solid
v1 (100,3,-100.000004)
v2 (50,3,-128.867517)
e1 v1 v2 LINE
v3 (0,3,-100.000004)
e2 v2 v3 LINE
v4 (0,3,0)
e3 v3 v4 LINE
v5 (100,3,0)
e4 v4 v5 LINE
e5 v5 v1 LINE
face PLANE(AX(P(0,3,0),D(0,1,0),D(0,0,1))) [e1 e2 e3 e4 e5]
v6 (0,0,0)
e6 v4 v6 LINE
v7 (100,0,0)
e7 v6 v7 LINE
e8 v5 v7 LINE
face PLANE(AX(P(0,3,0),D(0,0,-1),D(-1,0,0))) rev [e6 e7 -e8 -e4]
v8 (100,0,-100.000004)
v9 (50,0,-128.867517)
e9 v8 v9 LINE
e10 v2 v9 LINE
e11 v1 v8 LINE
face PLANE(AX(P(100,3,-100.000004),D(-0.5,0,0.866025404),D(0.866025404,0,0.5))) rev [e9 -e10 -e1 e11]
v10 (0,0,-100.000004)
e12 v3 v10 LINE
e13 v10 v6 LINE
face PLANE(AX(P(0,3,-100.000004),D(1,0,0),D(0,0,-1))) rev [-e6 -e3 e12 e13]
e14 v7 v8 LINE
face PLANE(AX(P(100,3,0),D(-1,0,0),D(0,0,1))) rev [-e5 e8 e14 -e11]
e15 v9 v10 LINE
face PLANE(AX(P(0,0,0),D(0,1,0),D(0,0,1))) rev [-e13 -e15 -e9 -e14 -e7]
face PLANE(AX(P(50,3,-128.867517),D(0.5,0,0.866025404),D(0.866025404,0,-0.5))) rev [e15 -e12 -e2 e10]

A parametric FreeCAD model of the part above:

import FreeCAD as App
import Part
import Sketcher

V = App.Vector
Q = App.Units.Quantity


def add_polygon(sketch, points):
    """Adds a closed chain of lines whose ends are joined by coincident constraints."""
    first, n = sketch.GeometryCount, len(points)
    for a, b in zip(points, points[1:] + points[:1]):
        sketch.addGeometry(Part.LineSegment(App.Vector(*a, 0), App.Vector(*b, 0)), False)
    for i in range(n):
        sketch.addConstraint(Sketcher.Constraint("Coincident", first + i, 2, first + (i + 1) % n, 1))

doc = App.newDocument("Part")
body = doc.addObject("PartDesign::Body", "Body")

# Sketch on XZ plane
sketch1 = body.newObject("Sketcher::SketchObject", "Sketch")
sketch1.AttachmentSupport = (doc.getObject("XZ_Plane"), [""])
sketch1.MapMode = "FlatFace"
add_polygon(sketch1, [(0, 0), (100, 0), (100, -100.000004), (50, -128.867517), (0, -100.000004)])  # lines 0-4
sketch1.addConstraint(Sketcher.Constraint("Horizontal", 0))
sketch1.addConstraint(Sketcher.Constraint("Vertical", 1))
sketch1.addConstraint(Sketcher.Constraint("Vertical", 4))
sketch1.addConstraint(Sketcher.Constraint("Coincident", 4, 2, -1, 1))
sketch1.addConstraint(Sketcher.Constraint("Horizontal", 1, 2, 3, 2))
sketch1.addConstraint(Sketcher.Constraint("Equal", 2, 3))
sketch1.addConstraint(Sketcher.Constraint("DistanceX", 0, 1, 0, 2, 100.0))
sketch1.addConstraint(Sketcher.Constraint("Angle", 2, Q("-150 deg")))
sketch1.addConstraint(Sketcher.Constraint("DistanceY", 1, 2, 1, 1, 100.000004))
pad1 = body.newObject("PartDesign::Pad", "Pad")
pad1.Profile = sketch1
pad1.Length = 3
pad1.Reversed = True

doc.recompute()
